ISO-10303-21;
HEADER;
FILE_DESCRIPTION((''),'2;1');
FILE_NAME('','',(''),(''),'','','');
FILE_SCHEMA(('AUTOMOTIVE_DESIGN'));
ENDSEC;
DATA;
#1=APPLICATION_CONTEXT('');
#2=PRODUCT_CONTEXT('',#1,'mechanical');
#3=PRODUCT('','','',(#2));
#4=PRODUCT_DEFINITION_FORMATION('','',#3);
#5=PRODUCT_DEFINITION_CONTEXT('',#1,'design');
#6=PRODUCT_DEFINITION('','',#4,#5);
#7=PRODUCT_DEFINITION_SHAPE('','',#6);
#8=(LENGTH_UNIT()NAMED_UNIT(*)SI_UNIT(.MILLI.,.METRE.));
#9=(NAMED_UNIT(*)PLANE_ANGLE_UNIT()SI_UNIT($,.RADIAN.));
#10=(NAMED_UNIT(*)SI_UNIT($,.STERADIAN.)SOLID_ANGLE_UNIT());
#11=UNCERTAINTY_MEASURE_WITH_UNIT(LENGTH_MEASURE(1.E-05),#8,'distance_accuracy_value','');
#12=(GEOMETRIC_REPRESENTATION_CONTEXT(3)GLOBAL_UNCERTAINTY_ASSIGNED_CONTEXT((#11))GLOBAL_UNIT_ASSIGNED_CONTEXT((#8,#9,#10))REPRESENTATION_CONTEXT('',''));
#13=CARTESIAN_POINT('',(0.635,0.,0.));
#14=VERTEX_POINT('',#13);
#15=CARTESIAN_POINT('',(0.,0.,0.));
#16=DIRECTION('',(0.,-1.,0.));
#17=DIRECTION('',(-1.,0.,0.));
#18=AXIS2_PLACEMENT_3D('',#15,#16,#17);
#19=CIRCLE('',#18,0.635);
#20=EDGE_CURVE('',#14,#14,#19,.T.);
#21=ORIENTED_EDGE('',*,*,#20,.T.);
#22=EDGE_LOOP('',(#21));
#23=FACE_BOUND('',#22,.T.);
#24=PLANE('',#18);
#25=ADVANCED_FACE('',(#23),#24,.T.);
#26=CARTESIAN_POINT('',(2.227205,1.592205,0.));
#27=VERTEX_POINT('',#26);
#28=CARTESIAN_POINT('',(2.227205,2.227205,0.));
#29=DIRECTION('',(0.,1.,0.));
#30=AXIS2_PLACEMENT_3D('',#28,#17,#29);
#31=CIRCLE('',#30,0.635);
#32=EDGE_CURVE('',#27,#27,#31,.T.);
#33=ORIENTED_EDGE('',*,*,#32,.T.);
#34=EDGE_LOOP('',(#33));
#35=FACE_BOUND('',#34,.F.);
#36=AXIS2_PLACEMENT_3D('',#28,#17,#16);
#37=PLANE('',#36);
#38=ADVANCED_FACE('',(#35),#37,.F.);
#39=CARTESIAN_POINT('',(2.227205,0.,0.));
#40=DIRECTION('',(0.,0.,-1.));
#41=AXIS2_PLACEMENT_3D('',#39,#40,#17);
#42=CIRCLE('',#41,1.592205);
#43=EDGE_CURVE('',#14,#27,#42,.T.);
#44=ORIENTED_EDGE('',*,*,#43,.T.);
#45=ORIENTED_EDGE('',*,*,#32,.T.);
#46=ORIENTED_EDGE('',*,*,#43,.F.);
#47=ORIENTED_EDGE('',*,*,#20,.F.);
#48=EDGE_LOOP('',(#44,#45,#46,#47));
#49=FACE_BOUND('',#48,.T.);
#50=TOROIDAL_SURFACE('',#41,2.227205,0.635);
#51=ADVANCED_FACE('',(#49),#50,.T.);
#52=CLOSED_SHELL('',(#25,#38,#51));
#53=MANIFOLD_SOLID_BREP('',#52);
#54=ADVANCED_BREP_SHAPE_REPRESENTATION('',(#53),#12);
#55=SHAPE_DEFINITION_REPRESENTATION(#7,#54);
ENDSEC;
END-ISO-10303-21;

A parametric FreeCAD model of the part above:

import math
import FreeCAD as App
import Part
import Sketcher
Q = App.Units.Quantity

doc = App.newDocument("Part")
body = doc.addObject("PartDesign::Body", "Body")

# Sketch on XZ plane
sketch1 = body.newObject("Sketcher::SketchObject", "Sketch")
sketch1.AttachmentSupport = (doc.getObject("XZ_Plane"), [""])
sketch1.MapMode = "FlatFace"
sketch1.addGeometry(Part.Circle(App.Vector(0, 0, 0), App.Vector(0, 0, 1), 0.6), False)
sketch1.addConstraint([
    Sketcher.Constraint("Coincident", 0, 3, -1, 1),
    Sketcher.Constraint("Diameter", 0, Q("0.05 in")),
])

# Sketch on XY plane
sketch2 = body.newObject("Sketcher::SketchObject", "Sketch001")
sketch2.AttachmentSupport = (doc.getObject("XY_Plane"), [""])
sketch2.MapMode = "FlatFace"
sketch2.addGeometry(Part.ArcOfCircle(Part.Circle(App.Vector(2.2, 0, 0), App.Vector(0, 0, 1), 2.2), math.radians(90), math.radians(180)), False)
sketch2.addConstraint([
    Sketcher.Constraint("Coincident", 0, 2, -1, 1),
    Sketcher.Constraint("PointOnObject", 0, 3, -1),
    Sketcher.Constraint("Radius", 0, Q("2.227205 mm")),
    Sketcher.Constraint("DistanceX", -1, 1, 0, 1, Q("2.227205 mm")),
])
doc.recompute()

additivepipe = body.newObject("PartDesign::AdditivePipe", "AdditivePipe")
additivepipe.Profile = sketch1
additivepipe.Spine = (sketch2, ["Edge1"])

doc.recompute()
